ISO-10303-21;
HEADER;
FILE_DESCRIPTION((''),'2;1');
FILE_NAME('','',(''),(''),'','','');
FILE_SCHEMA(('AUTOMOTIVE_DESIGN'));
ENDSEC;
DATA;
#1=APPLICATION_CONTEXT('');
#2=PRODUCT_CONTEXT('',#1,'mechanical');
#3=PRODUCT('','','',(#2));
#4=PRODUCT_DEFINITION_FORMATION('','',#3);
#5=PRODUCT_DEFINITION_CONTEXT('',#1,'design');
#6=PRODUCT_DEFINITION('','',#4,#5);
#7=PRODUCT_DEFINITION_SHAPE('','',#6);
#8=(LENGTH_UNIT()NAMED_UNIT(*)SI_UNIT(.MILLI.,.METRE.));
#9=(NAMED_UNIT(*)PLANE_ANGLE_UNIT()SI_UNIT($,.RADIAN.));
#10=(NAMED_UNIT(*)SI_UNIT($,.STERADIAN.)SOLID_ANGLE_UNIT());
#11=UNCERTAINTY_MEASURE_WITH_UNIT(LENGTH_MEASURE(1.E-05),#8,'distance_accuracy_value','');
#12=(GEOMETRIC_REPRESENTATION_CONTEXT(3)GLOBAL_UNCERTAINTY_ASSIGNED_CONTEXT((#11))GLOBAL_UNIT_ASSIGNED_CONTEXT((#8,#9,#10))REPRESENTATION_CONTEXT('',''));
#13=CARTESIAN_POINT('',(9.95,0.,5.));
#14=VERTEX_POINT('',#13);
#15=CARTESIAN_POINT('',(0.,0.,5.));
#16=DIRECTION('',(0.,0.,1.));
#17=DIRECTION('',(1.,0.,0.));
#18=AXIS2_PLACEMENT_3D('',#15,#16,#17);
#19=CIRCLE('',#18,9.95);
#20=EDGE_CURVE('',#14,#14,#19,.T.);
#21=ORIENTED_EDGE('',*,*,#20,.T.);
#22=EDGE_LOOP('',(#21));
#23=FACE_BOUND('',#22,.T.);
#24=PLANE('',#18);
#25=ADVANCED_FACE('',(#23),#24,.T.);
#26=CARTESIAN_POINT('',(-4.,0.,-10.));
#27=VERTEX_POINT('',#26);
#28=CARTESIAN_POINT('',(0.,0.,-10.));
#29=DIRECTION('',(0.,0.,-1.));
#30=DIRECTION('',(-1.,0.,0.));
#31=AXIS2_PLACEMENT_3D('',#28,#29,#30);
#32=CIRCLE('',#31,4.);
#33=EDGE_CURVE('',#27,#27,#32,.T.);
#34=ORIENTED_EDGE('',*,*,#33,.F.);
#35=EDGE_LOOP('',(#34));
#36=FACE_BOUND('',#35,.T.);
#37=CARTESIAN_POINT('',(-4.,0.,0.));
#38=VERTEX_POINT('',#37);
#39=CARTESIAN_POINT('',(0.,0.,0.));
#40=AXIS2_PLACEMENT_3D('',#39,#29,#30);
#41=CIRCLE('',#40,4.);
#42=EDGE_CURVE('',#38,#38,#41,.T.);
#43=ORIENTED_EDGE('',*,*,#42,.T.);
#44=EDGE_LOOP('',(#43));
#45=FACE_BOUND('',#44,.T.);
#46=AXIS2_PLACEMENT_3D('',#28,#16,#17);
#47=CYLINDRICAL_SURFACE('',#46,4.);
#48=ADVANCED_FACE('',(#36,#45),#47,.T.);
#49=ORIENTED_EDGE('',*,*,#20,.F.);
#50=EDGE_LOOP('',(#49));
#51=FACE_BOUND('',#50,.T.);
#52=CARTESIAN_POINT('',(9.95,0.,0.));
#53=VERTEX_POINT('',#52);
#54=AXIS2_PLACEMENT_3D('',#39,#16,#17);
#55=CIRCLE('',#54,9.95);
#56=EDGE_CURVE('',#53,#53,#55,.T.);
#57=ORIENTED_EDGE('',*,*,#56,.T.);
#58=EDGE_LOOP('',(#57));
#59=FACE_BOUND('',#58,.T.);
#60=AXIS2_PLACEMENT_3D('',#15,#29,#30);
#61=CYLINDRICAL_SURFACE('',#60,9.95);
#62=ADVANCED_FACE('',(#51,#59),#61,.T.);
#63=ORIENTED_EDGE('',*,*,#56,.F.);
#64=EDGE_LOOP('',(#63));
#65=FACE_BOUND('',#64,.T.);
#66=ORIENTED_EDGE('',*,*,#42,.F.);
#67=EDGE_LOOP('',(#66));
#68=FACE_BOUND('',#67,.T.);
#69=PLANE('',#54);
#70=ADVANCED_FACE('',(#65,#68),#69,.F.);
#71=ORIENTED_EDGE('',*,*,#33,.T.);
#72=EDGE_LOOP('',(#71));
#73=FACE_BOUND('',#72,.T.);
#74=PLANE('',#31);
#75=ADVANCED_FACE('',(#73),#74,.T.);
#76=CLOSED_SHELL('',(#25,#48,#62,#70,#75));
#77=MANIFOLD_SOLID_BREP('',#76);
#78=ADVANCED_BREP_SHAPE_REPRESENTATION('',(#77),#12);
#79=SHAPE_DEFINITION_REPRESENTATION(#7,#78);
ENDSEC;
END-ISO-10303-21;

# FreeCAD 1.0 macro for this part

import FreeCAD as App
import Part
import Sketcher
from FreeCAD import Vector

doc = App.newDocument("Part")
body = doc.addObject("PartDesign::Body", "Body")

sketch1 = body.newObject("Sketcher::SketchObject", "Sketch")
sketch1.AttachmentSupport = (doc.getObject("XY_Plane"), [""])
sketch1.MapMode = "FlatFace"
sketch1.addGeometry(Part.Circle(Vector(0, 0, 0), Vector(0, 0, 1), 10), False)
sketch1.addConstraint([
    Sketcher.Constraint("Coincident", 0, 3, -1, 1),
    Sketcher.Constraint("Diameter", 0, 19.9),
])
pad1 = body.newObject("PartDesign::Pad", "Pad")
pad1.Profile = sketch1
pad1.Length = 5

sketch2 = body.newObject("Sketcher::SketchObject", "Sketch001")
sketch2.AttachmentSupport = (doc.getObject("XY_Plane"), [""])
sketch2.MapMode = "FlatFace"
sketch2.addGeometry(Part.Circle(Vector(0, 0, 0), Vector(0, 0, 1), 4), False)
sketch2.addConstraint([
    Sketcher.Constraint("Coincident", 0, 3, -1, 1),
    Sketcher.Constraint("Diameter", 0, 8.0),
])
pad2 = body.newObject("PartDesign::Pad", "Pad001")
pad2.Profile = sketch2
pad2.Length = 10
pad2.Reversed = True

doc.recompute()
